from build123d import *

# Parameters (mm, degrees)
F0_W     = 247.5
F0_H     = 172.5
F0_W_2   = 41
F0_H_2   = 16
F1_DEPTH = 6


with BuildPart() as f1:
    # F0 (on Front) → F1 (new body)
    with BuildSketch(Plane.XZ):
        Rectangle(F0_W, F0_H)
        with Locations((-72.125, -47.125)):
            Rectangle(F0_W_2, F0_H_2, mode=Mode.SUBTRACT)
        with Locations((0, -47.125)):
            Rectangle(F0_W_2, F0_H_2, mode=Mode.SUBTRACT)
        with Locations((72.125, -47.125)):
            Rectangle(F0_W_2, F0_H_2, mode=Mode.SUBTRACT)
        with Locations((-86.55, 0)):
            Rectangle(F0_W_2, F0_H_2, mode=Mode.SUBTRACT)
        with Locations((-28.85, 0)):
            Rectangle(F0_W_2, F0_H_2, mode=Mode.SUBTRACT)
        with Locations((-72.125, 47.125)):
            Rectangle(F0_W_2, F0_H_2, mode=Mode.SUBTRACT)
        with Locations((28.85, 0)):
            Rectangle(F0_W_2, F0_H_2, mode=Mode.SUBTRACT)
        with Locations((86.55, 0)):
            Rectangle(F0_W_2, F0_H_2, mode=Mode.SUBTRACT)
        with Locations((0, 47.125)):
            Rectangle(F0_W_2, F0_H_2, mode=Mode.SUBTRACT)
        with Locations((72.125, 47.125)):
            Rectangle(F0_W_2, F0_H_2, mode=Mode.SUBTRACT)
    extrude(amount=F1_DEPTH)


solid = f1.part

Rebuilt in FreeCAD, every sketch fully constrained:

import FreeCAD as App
import Part
import Sketcher

V = App.Vector


def add_polygon(sketch, points):
    """Adds a closed chain of lines whose ends are joined by coincident constraints."""
    first, n = sketch.GeometryCount, len(points)
    for a, b in zip(points, points[1:] + points[:1]):
        sketch.addGeometry(Part.LineSegment(App.Vector(*a, 0), App.Vector(*b, 0)), False)
    for i in range(n):
        sketch.addConstraint(Sketcher.Constraint("Coincident", first + i, 2, first + (i + 1) % n, 1))

doc = App.newDocument("Part")
body = doc.addObject("PartDesign::Body", "Body")

sketch1 = body.newObject("Sketcher::SketchObject", "Sketch")
sketch1.AttachmentSupport = (doc.getObject("XZ_Plane"), [""])
sketch1.MapMode = "FlatFace"
add_polygon(sketch1, [(-124, 86), (-124, -86), (124, -86), (124, 86)])
add_polygon(sketch1, [(-52, -55), (-93, -55), (-93, -39), (-52, -39)])
add_polygon(sketch1, [(20, -55), (-20, -55), (-20, -39), (20, -39)])
add_polygon(sketch1, [(93, -55), (52, -55), (52, -39), (93, -39)])
add_polygon(sketch1, [(-66, -8), (-107, -8), (-107, 8), (-66, 8)])
add_polygon(sketch1, [(-8, -8), (-49, -8), (-49, 8), (-8, 8)])
add_polygon(sketch1, [(-52, 39), (-93, 39), (-93, 55), (-52, 55)])
add_polygon(sketch1, [(20, 39), (-20, 39), (-20, 55), (20, 55)])
add_polygon(sketch1, [(49, -8), (8, -8), (8, 8), (49, 8)])
add_polygon(sketch1, [(107, -8), (66, -8), (66, 8), (107, 8)])
add_polygon(sketch1, [(93, 39), (52, 39), (52, 55), (93, 55)])
sketch1.addConstraint([
    Sketcher.Constraint("Vertical", 0),
    Sketcher.Constraint("Horizontal", 1),
    Sketcher.Constraint("Vertical", 2),
    Sketcher.Constraint("Horizontal", 3),
    Sketcher.Constraint("Horizontal", 4),
    Sketcher.Constraint("Vertical", 5),
    Sketcher.Constraint("Horizontal", 6),
    Sketcher.Constraint("Vertical", 7),
    Sketcher.Constraint("Horizontal", 8),
    Sketcher.Constraint("Vertical", 9),
    Sketcher.Constraint("Horizontal", 10),
    Sketcher.Constraint("Vertical", 11),
    Sketcher.Constraint("Horizontal", 12),
    Sketcher.Constraint("Vertical", 13),
    Sketcher.Constraint("Horizontal", 14),
    Sketcher.Constraint("Vertical", 15),
    Sketcher.Constraint("Horizontal", 16),
    Sketcher.Constraint("Vertical", 17),
    Sketcher.Constraint("Horizontal", 18),
    Sketcher.Constraint("Vertical", 19),
    Sketcher.Constraint("Horizontal", 20),
    Sketcher.Constraint("Vertical", 21),
    Sketcher.Constraint("Horizontal", 22),
    Sketcher.Constraint("Vertical", 23),
    Sketcher.Constraint("Horizontal", 24),
    Sketcher.Constraint("Vertical", 25),
    Sketcher.Constraint("Horizontal", 26),
    Sketcher.Constraint("Vertical", 27),
    Sketcher.Constraint("Horizontal", 28),
    Sketcher.Constraint("Vertical", 29),
    Sketcher.Constraint("Horizontal", 30),
    Sketcher.Constraint("Vertical", 31),
    Sketcher.Constraint("Horizontal", 32),
    Sketcher.Constraint("Vertical", 33),
    Sketcher.Constraint("Horizontal", 34),
    Sketcher.Constraint("Vertical", 35),
    Sketcher.Constraint("Horizontal", 36),
    Sketcher.Constraint("Vertical", 37),
    Sketcher.Constraint("Horizontal", 38),
    Sketcher.Constraint("Vertical", 39),
    Sketcher.Constraint("Horizontal", 40),
    Sketcher.Constraint("Vertical", 41),
    Sketcher.Constraint("Horizontal", 42),
    Sketcher.Constraint("Vertical", 43),
    Sketcher.Constraint("Symmetric", 0, 2, 2, 2, -1, 1),
    Sketcher.Constraint("Symmetric", 14, 2, 24, 2, -1, 1),
    Sketcher.Constraint("Symmetric", 12, 2, 26, 2, -1, 1),
    Sketcher.Constraint("Symmetric", 10, 2, 28, 2, -1, 1),
    Sketcher.Constraint("Symmetric", 8, 2, 30, 2, -1, 1),
    Sketcher.Constraint("Symmetric", 22, 2, 32, 2, -1, 1),
    Sketcher.Constraint("Symmetric", 20, 2, 34, 2, -1, 1),
    Sketcher.Constraint("Symmetric", 18, 2, 36, 2, -1, 1),
    Sketcher.Constraint("Symmetric", 16, 2, 38, 2, -1, 1),
    Sketcher.Constraint("Symmetric", 6, 2, 40, 2, -1, 1),
    Sketcher.Constraint("Symmetric", 4, 2, 42, 2, -1, 1),
    Sketcher.Constraint("Symmetric", 7, 2, 12, 2, -2),
    Sketcher.Constraint("Symmetric", 5, 2, 14, 2, -2),
    Sketcher.Constraint("Horizontal", 7, 2, 8, 2),
    Sketcher.Constraint("Horizontal", 6, 2, 9, 2),
    Sketcher.Constraint("Horizontal", 19, 2, 20, 2),
    Sketcher.Constraint("Horizontal", 18, 2, 21, 2),
    Sketcher.Constraint("Horizontal", 23, 2, 32, 2),
    Sketcher.Constraint("Vertical", 9, 2, 28, 2),
    Sketcher.Constraint("Equal", 6, 8),
    Sketcher.Constraint("Equal", 14, 16),
    Sketcher.Constraint("Equal", 18, 20),
    Sketcher.Constraint("Equal", 15, 17),
    Sketcher.Constraint("DistanceX", 4, 2, 4, 1, 41.0),
    Sketcher.Constraint("DistanceY", 5, 1, 5, 2, 16.0),
    Sketcher.Constraint("DistanceX", 1, 1, 1, 2, 247.5),
    Sketcher.Constraint("DistanceY", 0, 2, 0, 1, 172.5),
    Sketcher.Constraint("DistanceX", 0, 2, 16, 2, 16.7),
    Sketcher.Constraint("DistanceX", 19, 2, 20, 2, 16.7),
    Sketcher.Constraint("DistanceX", 4, 2, -1, 1, 92.625),
    Sketcher.Constraint("DistanceY", 4, 2, -1, 1, 55.125),
])
pad1 = body.newObject("PartDesign::Pad", "Pad")
pad1.Profile = sketch1
pad1.Length = 6

doc.recompute()
